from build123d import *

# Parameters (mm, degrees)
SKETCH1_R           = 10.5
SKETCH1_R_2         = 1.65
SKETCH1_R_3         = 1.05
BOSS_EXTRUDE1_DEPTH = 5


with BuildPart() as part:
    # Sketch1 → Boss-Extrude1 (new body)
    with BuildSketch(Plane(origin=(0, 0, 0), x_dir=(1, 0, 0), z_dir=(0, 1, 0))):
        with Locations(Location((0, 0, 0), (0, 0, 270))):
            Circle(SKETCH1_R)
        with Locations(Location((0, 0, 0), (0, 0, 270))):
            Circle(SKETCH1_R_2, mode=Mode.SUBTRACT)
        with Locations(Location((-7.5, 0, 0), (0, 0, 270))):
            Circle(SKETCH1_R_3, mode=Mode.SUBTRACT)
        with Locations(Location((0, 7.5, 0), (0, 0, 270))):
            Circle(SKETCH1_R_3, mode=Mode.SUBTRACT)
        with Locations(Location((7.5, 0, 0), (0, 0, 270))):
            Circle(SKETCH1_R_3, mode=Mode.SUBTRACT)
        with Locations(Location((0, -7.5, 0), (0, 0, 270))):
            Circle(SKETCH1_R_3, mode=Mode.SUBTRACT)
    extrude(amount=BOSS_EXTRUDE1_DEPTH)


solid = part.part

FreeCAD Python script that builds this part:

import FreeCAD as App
import Part
import Sketcher
from FreeCAD import Vector

doc = App.newDocument("Part")
body = doc.addObject("PartDesign::Body", "Body")

sketch1 = body.newObject("Sketcher::SketchObject", "Sketch")
sketch1.AttachmentSupport = (doc.getObject("XZ_Plane"), [""])
sketch1.MapMode = "FlatFace"
sketch1.addGeometry(Part.Circle(Vector(0, 0, 0), Vector(0, 0, 1), 10.5), False)
sketch1.addGeometry(Part.Circle(Vector(0, -7.5, 0), Vector(0, 0, 1), 1.1), False)
sketch1.addGeometry(Part.Circle(Vector(-7.5, 0, 0), Vector(0, 0, 1), 1.1), False)
sketch1.addGeometry(Part.Circle(Vector(0, 0, 0), Vector(0, 0, 1), 1.6), False)
sketch1.addGeometry(Part.Circle(Vector(7.5, 0, 0), Vector(0, 0, 1), 1.1), False)
sketch1.addGeometry(Part.Circle(Vector(0, 7.5, 0), Vector(0, 0, 1), 1.1), False)
sketch1.addConstraint(Sketcher.Constraint("Coincident", 0, 3, -1, 1))
sketch1.addConstraint(Sketcher.Constraint("Coincident", 3, 3, -1, 1))
sketch1.addConstraint(Sketcher.Constraint("Equal", 1, 2))
sketch1.addConstraint(Sketcher.Constraint("Equal", 2, 4))
sketch1.addConstraint(Sketcher.Constraint("Equal", 4, 5))
sketch1.addConstraint(Sketcher.Constraint("Symmetric", 2, 3, 4, 3, -1, 1))
sketch1.addConstraint(Sketcher.Constraint("Symmetric", 1, 3, 5, 3, -1, 1))
sketch1.addConstraint(Sketcher.Constraint("PointOnObject", 1, 3, -2))
sketch1.addConstraint(Sketcher.Constraint("PointOnObject", 2, 3, -1))
sketch1.addConstraint(Sketcher.Constraint("Diameter", 0, 21.0))
sketch1.addConstraint(Sketcher.Constraint("Diameter", 1, 2.1))
sketch1.addConstraint(Sketcher.Constraint("Diameter", 3, 3.3))
sketch1.addConstraint(Sketcher.Constraint("DistanceX", 2, 3, 4, 3, 15.0))
sketch1.addConstraint(Sketcher.Constraint("DistanceY", 1, 3, 5, 3, 15.0))
pad1 = body.newObject("PartDesign::Pad", "Pad")
pad1.Profile = sketch1
pad1.Length = 5
pad1.Reversed = True

doc.recompute()
